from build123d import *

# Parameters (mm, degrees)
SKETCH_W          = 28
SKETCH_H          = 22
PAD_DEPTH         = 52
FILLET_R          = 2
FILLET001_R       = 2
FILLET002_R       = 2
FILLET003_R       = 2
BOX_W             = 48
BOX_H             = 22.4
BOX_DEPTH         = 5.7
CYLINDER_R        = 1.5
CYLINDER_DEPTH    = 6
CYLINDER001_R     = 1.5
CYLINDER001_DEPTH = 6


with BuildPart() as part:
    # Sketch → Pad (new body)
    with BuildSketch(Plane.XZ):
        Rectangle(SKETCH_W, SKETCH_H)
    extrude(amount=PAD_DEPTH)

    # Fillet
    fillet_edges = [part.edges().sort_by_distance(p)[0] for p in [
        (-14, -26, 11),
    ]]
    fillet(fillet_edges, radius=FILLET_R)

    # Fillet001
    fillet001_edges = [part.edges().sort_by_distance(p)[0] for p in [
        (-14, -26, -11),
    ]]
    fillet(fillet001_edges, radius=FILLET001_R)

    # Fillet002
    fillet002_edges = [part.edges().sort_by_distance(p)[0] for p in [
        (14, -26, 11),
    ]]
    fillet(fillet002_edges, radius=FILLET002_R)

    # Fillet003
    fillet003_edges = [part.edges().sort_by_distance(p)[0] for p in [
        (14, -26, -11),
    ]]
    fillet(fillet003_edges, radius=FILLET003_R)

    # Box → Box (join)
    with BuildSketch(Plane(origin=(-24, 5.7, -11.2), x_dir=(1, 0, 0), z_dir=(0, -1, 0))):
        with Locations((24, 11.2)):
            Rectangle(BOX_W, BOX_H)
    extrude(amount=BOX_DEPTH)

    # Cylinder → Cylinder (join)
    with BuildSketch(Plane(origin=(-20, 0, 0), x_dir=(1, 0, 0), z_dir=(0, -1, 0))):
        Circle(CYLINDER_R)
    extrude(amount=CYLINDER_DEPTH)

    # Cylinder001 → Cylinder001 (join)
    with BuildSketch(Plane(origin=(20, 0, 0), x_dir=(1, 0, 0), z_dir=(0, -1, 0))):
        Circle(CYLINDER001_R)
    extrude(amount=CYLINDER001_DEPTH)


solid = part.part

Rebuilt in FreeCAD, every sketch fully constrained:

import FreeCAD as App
import Part
import Sketcher

V = App.Vector
Q = App.Units.Quantity


def edges_at(feature, points):
    """Names of the edges that pass closest to the given points."""
    edges = feature.Shape.Edges
    near = lambda p: min(range(len(edges)), key=lambda i: edges[i].distToShape(Part.Vertex(*p))[0])
    return sorted({f"Edge{near(p) + 1}" for p in points})


def add_polygon(sketch, points):
    """Adds a closed chain of lines whose ends are joined by coincident constraints."""
    first, n = sketch.GeometryCount, len(points)
    for a, b in zip(points, points[1:] + points[:1]):
        sketch.addGeometry(Part.LineSegment(App.Vector(*a, 0), App.Vector(*b, 0)), False)
    for i in range(n):
        sketch.addConstraint(Sketcher.Constraint("Coincident", first + i, 2, first + (i + 1) % n, 1))

doc = App.newDocument("Part")
body = doc.addObject("PartDesign::Body", "Body")

sketch1 = body.newObject("Sketcher::SketchObject", "Sketch")
sketch1.AttachmentSupport = (doc.getObject("XZ_Plane"), [""])
sketch1.MapMode = "FlatFace"
add_polygon(sketch1, [(-14, 11), (-14, -11), (14, -11), (14, 11)])
sketch1.addConstraint([
    Sketcher.Constraint("Vertical", 0),
    Sketcher.Constraint("Horizontal", 1),
    Sketcher.Constraint("Vertical", 2),
    Sketcher.Constraint("Horizontal", 3),
    Sketcher.Constraint("Symmetric", 0, 2, 2, 2, -1, 1),
    Sketcher.Constraint("DistanceX", 1, 1, 1, 2, Q("28 mm")),
    Sketcher.Constraint("DistanceY", 0, 2, 0, 1, Q("22 mm")),
])
pad1 = body.newObject("PartDesign::Pad", "Pad")
pad1.Profile = sketch1
pad1.Length = 52
doc.recompute()

fillet = body.newObject("PartDesign::Fillet", "Fillet")
fillet.Base = (pad1, edges_at(pad1, [(-14, -26, 11)]))
fillet.Radius = 2
doc.recompute()

fillet2 = body.newObject("PartDesign::Fillet", "Fillet001")
fillet2.Base = (fillet, edges_at(fillet, [(-14, -26, -11)]))
fillet2.Radius = 2
doc.recompute()

fillet3 = body.newObject("PartDesign::Fillet", "Fillet002")
fillet3.Base = (fillet2, edges_at(fillet2, [(14, -26, 11)]))
fillet3.Radius = 2
doc.recompute()

fillet4 = body.newObject("PartDesign::Fillet", "Fillet003")
fillet4.Base = (fillet3, edges_at(fillet3, [(14, -26, -11)]))
fillet4.Radius = 2

sketch2 = body.newObject("Sketcher::SketchObject", "Sketch001")
sketch2.AttachmentSupport = (doc.getObject("XZ_Plane"), [""])
sketch2.MapMode = "FlatFace"
sketch2.AttachmentOffset = App.Placement(V(0, 0, -5.7), App.Rotation())
add_polygon(sketch2, [(-24, 11), (-24, -11), (24, -11), (24, 11)])
sketch2.addConstraint([
    Sketcher.Constraint("Vertical", 0),
    Sketcher.Constraint("Horizontal", 1),
    Sketcher.Constraint("Vertical", 2),
    Sketcher.Constraint("Horizontal", 3),
    Sketcher.Constraint("Symmetric", 0, 2, 2, 2, -1, 1),
    Sketcher.Constraint("DistanceX", 1, 1, 1, 2, Q("48 mm")),
    Sketcher.Constraint("DistanceY", 0, 2, 0, 1, Q("22.4 mm")),
])
pad2 = body.newObject("PartDesign::Pad", "Pad001")
pad2.Profile = sketch2
pad2.Length = 5.7

sketch3 = body.newObject("Sketcher::SketchObject", "Sketch002")
sketch3.AttachmentSupport = (doc.getObject("XZ_Plane"), [""])
sketch3.MapMode = "FlatFace"
sketch3.addGeometry(Part.Circle(V(-20, 0, 0), V(0, 0, 1), 1.5), False)
sketch3.addConstraint([
    Sketcher.Constraint("PointOnObject", 0, 3, -1),
    Sketcher.Constraint("Diameter", 0, Q("3 mm")),
    Sketcher.Constraint("DistanceX", 0, 3, -1, 1, Q("20 mm")),
])
pad3 = body.newObject("PartDesign::Pad", "Pad002")
pad3.Profile = sketch3
pad3.Length = 6

sketch4 = body.newObject("Sketcher::SketchObject", "Sketch003")
sketch4.AttachmentSupport = (doc.getObject("XZ_Plane"), [""])
sketch4.MapMode = "FlatFace"
sketch4.addGeometry(Part.Circle(V(20, 0, 0), V(0, 0, 1), 1.5), False)
sketch4.addConstraint([
    Sketcher.Constraint("PointOnObject", 0, 3, -1),
    Sketcher.Constraint("Diameter", 0, Q("3 mm")),
    Sketcher.Constraint("DistanceX", -1, 1, 0, 3, Q("20 mm")),
])
pad4 = body.newObject("PartDesign::Pad", "Pad003")
pad4.Profile = sketch4
pad4.Length = 6

doc.recompute()
